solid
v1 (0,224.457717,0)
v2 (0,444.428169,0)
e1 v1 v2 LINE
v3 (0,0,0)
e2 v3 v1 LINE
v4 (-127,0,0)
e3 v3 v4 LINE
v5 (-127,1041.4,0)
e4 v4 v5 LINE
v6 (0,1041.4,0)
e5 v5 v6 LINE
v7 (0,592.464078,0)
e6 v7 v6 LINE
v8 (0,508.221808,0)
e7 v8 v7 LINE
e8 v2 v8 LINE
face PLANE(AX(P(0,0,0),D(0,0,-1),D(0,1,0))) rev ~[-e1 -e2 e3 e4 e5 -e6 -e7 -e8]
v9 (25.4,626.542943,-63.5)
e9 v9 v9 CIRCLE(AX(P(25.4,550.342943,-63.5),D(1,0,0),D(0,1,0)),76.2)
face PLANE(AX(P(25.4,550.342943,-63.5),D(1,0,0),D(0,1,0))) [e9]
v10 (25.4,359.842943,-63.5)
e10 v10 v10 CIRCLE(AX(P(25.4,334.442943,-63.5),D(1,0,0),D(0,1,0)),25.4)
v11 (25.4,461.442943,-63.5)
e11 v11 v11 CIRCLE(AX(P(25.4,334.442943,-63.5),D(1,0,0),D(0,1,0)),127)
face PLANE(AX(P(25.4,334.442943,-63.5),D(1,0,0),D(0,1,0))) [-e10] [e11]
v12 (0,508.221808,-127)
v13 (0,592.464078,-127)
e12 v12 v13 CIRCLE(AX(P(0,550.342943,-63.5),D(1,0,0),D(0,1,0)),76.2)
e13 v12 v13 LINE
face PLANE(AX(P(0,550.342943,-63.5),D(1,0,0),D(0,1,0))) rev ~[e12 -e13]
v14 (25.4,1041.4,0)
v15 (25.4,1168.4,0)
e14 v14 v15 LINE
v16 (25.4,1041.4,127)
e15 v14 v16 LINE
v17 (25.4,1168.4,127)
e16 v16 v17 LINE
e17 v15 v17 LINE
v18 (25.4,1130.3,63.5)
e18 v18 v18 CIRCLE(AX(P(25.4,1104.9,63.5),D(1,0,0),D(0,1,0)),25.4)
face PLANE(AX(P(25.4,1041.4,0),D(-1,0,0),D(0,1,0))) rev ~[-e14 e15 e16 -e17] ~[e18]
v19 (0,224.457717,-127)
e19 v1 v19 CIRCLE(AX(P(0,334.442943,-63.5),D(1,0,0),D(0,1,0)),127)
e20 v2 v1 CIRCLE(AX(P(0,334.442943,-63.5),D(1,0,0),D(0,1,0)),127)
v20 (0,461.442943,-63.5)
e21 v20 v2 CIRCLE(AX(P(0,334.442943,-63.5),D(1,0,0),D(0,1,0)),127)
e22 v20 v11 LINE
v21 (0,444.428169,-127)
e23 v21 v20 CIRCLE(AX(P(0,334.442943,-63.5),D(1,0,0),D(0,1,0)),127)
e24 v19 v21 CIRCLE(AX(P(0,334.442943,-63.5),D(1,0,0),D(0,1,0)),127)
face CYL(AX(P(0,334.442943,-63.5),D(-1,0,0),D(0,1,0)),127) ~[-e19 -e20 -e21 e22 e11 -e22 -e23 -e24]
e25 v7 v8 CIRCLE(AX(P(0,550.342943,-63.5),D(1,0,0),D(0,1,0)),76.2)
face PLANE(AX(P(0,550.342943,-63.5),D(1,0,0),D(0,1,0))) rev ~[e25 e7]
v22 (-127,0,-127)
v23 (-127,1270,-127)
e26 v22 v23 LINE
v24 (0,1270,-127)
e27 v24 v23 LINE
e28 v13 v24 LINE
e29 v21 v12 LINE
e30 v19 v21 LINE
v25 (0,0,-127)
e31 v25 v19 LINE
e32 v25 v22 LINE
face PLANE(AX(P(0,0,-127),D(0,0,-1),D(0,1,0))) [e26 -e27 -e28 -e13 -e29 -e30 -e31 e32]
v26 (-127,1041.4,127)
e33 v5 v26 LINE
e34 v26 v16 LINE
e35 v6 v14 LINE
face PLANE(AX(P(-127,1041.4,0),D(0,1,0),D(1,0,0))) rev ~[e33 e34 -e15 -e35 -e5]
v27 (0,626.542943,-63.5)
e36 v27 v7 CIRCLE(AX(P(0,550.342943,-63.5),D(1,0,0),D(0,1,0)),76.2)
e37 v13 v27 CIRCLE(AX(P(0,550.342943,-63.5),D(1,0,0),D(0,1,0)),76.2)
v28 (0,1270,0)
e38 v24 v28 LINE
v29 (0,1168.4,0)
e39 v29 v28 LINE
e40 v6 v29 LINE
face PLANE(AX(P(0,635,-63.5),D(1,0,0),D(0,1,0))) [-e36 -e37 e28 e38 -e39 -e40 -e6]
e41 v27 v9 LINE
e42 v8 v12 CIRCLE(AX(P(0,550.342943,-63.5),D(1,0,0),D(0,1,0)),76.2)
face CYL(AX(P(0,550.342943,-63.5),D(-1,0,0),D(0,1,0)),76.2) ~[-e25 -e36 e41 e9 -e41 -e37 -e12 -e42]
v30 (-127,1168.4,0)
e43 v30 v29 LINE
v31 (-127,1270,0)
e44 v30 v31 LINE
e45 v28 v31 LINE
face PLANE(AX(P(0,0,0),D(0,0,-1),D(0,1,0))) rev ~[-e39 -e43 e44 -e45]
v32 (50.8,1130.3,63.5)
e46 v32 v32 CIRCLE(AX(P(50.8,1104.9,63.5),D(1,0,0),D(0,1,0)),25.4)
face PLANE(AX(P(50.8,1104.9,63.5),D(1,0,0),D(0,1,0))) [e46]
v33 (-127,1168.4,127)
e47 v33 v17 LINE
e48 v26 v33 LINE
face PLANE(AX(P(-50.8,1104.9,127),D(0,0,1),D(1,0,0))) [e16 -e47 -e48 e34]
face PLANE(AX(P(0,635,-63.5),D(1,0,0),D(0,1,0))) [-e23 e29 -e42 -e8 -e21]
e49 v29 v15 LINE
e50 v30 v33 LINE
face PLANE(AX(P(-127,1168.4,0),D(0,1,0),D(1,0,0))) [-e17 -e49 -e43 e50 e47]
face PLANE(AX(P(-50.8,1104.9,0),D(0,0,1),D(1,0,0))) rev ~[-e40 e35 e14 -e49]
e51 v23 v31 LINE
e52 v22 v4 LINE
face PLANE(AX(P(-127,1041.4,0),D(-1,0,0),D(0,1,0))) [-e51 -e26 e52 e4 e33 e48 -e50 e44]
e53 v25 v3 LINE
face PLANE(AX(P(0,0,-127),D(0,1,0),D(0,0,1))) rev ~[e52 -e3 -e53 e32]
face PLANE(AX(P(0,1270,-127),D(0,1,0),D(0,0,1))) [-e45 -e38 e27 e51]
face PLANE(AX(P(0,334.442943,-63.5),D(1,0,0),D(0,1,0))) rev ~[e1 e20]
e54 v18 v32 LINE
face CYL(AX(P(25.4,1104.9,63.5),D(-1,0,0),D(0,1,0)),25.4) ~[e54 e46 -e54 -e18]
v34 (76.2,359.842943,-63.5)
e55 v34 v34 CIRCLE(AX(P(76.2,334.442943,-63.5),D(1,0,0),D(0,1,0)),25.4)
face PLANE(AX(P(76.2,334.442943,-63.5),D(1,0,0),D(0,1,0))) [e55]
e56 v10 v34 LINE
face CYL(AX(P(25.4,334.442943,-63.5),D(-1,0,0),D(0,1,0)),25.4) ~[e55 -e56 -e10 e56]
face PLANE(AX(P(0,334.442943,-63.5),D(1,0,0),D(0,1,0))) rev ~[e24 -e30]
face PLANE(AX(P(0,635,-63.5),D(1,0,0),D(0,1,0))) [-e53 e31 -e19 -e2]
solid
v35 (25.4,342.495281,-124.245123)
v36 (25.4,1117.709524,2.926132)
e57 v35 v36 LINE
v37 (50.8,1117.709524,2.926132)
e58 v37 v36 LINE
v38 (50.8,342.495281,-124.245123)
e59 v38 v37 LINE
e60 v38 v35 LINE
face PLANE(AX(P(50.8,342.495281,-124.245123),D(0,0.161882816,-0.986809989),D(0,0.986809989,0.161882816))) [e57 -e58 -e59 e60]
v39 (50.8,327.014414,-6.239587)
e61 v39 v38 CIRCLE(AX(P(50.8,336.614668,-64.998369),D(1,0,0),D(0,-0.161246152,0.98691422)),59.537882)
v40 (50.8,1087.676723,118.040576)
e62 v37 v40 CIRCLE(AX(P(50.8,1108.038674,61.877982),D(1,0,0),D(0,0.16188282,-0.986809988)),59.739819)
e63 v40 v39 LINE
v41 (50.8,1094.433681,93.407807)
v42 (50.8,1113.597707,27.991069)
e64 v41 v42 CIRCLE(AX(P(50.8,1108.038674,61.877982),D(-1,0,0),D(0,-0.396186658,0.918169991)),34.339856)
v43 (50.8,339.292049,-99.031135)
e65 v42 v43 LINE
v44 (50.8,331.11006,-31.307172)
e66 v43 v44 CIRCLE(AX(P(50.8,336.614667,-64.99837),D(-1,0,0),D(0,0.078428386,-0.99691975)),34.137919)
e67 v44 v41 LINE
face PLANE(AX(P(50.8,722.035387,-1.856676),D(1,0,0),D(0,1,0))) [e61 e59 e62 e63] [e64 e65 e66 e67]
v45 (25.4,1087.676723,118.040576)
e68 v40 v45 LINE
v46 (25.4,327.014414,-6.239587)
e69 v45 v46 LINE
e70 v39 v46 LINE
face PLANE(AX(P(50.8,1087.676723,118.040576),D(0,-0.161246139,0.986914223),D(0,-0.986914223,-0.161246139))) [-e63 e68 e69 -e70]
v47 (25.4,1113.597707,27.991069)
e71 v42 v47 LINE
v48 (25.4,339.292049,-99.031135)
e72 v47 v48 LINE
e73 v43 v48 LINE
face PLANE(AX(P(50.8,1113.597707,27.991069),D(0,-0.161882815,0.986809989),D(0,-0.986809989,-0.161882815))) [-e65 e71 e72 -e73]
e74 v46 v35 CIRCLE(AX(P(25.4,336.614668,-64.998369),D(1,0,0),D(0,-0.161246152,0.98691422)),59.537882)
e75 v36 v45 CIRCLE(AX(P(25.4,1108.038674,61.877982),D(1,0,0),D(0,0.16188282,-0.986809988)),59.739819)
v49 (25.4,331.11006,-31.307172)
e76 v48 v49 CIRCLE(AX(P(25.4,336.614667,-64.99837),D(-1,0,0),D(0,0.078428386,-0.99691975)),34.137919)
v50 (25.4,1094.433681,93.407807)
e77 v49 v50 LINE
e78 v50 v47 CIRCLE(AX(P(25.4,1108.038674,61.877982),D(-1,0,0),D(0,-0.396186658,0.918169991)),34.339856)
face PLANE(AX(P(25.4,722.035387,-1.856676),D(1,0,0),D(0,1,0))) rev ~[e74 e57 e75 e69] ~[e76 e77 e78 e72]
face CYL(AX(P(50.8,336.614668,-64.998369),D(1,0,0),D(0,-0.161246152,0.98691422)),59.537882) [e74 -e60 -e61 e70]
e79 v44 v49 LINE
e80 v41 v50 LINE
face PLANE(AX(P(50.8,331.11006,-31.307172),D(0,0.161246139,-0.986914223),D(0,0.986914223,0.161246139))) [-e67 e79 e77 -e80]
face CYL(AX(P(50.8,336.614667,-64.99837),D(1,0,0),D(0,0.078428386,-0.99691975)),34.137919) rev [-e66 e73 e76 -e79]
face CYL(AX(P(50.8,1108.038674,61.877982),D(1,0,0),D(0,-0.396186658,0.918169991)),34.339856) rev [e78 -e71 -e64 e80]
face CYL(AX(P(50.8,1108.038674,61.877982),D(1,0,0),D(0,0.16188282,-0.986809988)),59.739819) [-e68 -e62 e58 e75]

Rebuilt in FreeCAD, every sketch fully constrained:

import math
import FreeCAD as App
import Part
import Sketcher
Q = App.Units.Quantity

doc = App.newDocument("Part")
params = doc.addObject("Spreadsheet::Sheet", "Params")
for row, (alias, value) in enumerate([
    ("sketch1_width", "50 in"),
    ("sketch1_height", "5 in"),
    ("pad1_length", "5 in"),
    ("sketch2_diameter", "10 in"),
    ("sketch2_diameter2", "6 in"),
    ("pad2_length", "1 in"),
    ("sketch3_diameter", "2 in"),
    ("pad3_length", "2 in"),
    ("sketch4_width", "6 in"),
    ("sketch4_height", "5 in"),
    ("pad4_length", "5 in"),
    ("sketch5_diameter", "2 in"),
    ("pad5_length", "1 in"),
    ("pad6_length", "1 in"),
], start=1):
    params.set(f"A{row}", alias)
    params.set(f"B{row}", "=" + value)
    params.setAlias(f"B{row}", alias)

body = doc.addObject("PartDesign::Body", "Body")

# Sketch on YZ plane
sketch1 = body.newObject("Sketcher::SketchObject", "Sketch")
sketch1.AttachmentSupport = (doc.getObject("YZ_Plane"), [""])
sketch1.MapMode = "FlatFace"
sketch1.addGeometry([
    Part.LineSegment(App.Vector(0, 0, 0), App.Vector(0, -127, 0)),
    Part.LineSegment(App.Vector(0, -127, 0), App.Vector(1270, -127, 0)),
    Part.LineSegment(App.Vector(1270, -127, 0), App.Vector(1270, 0, 0)),
    Part.LineSegment(App.Vector(1270, 0, 0), App.Vector(0, 0, 0)),
], False)
sketch1.addConstraint([
    Sketcher.Constraint("Coincident", 0, 2, 1, 1),
    Sketcher.Constraint("Coincident", 1, 2, 2, 1),
    Sketcher.Constraint("Coincident", 2, 2, 3, 1),
    Sketcher.Constraint("Coincident", 3, 2, 0, 1),
    Sketcher.Constraint("Vertical", 0),
    Sketcher.Constraint("Horizontal", 1),
    Sketcher.Constraint("Vertical", 2),
    Sketcher.Constraint("Horizontal", 3),
    Sketcher.Constraint("Coincident", 3, 2, -1, 1),
    Sketcher.Constraint("DistanceX", 1, 1, 1, 2, Q("50 in")),
    Sketcher.Constraint("DistanceY", 0, 2, 0, 1, Q("5 in")),
])
sketch1.setExpression("Constraints[9]", "Params.sketch1_width")
sketch1.setExpression("Constraints[10]", "Params.sketch1_height")
pad1 = body.newObject("PartDesign::Pad", "Pad")
pad1.Profile = sketch1
pad1.setExpression("Length", "Params.pad1_length")
pad1.Reversed = True

# Sketch on YZ plane
sketch2 = body.newObject("Sketcher::SketchObject", "Sketch001")
sketch2.AttachmentSupport = (doc.getObject("YZ_Plane"), [""])
sketch2.MapMode = "FlatFace"
sketch2.addGeometry([
    Part.Circle(App.Vector(334.442943, -63.5, 0), App.Vector(0, 0, 1), 127),
    Part.Circle(App.Vector(550.342943, -63.5, 0), App.Vector(0, 0, 1), 76.2),
], False)
sketch2.addConstraint([
    Sketcher.Constraint("Horizontal", 0, 3, 1, 3),
    Sketcher.Constraint("Diameter", 0, Q("10 in")),
    Sketcher.Constraint("Diameter", 1, Q("6 in")),
    Sketcher.Constraint("DistanceY", 0, 3, -1, 1, Q("2.5 in")),
    Sketcher.Constraint("DistanceX", 0, 3, 1, 3, Q("8.5 in")),
    Sketcher.Constraint("DistanceX", -1, 1, 0, 3, Q("334.442943 mm")),
])
sketch2.setExpression("Constraints[1]", "Params.sketch2_diameter")
sketch2.setExpression("Constraints[2]", "Params.sketch2_diameter2")
pad2 = body.newObject("PartDesign::Pad", "Pad001")
pad2.Profile = sketch2
pad2.setExpression("Length", "Params.pad2_length")

# Sketch on YZ plane
sketch3 = body.newObject("Sketcher::SketchObject", "Sketch002")
sketch3.AttachmentSupport = (doc.getObject("YZ_Plane"), [""])
sketch3.MapMode = "FlatFace"
sketch3.AttachmentOffset = App.Placement(App.Vector(0, 0, 1 * 25.4), App.Rotation())
sketch3.addGeometry(Part.Circle(App.Vector(334.442943, -63.5, 0), App.Vector(0, 0, 1), 25.4), False)
sketch3.addConstraint([
    Sketcher.Constraint("Diameter", 0, Q("2 in")),
    Sketcher.Constraint("DistanceY", 0, 3, -1, 1, Q("2.5 in")),
    Sketcher.Constraint("DistanceX", -1, 1, 0, 3, Q("334.442943 mm")),
])
sketch3.setExpression("Constraints[0]", "Params.sketch3_diameter")
pad3 = body.newObject("PartDesign::Pad", "Pad002")
pad3.Profile = sketch3
pad3.setExpression("Length", "Params.pad3_length")

# Sketch on XY plane
sketch4 = body.newObject("Sketcher::SketchObject", "Sketch003")
sketch4.AttachmentSupport = (doc.getObject("XY_Plane"), [""])
sketch4.MapMode = "FlatFace"
sketch4.addGeometry([
    Part.LineSegment(App.Vector(-127, 1168.4, 0), App.Vector(-127, 1041.4, 0)),
    Part.LineSegment(App.Vector(-127, 1041.4, 0), App.Vector(25.4, 1041.4, 0)),
    Part.LineSegment(App.Vector(25.4, 1041.4, 0), App.Vector(25.4, 1168.4, 0)),
    Part.LineSegment(App.Vector(25.4, 1168.4, 0), App.Vector(-127, 1168.4, 0)),
], False)
sketch4.addConstraint([
    Sketcher.Constraint("Coincident", 0, 2, 1, 1),
    Sketcher.Constraint("Coincident", 1, 2, 2, 1),
    Sketcher.Constraint("Coincident", 2, 2, 3, 1),
    Sketcher.Constraint("Coincident", 3, 2, 0, 1),
    Sketcher.Constraint("Vertical", 0),
    Sketcher.Constraint("Horizontal", 1),
    Sketcher.Constraint("Vertical", 2),
    Sketcher.Constraint("Horizontal", 3),
    Sketcher.Constraint("DistanceX", 1, 1, 1, 2, Q("6 in")),
    Sketcher.Constraint("DistanceY", 0, 2, 0, 1, Q("5 in")),
    Sketcher.Constraint("DistanceX", 0, 2, -1, 1, Q("5 in")),
    Sketcher.Constraint("DistanceY", -1, 1, 0, 2, Q("41 in")),
])
sketch4.setExpression("Constraints[8]", "Params.sketch4_width")
sketch4.setExpression("Constraints[9]", "Params.sketch4_height")
pad4 = body.newObject("PartDesign::Pad", "Pad003")
pad4.Profile = sketch4
pad4.setExpression("Length", "Params.pad4_length")

# Sketch on YZ plane
sketch5 = body.newObject("Sketcher::SketchObject", "Sketch004")
sketch5.AttachmentSupport = (doc.getObject("YZ_Plane"), [""])
sketch5.MapMode = "FlatFace"
sketch5.AttachmentOffset = App.Placement(App.Vector(0, 0, 1 * 25.4), App.Rotation())
sketch5.addGeometry(Part.Circle(App.Vector(1104.9, 63.5, 0), App.Vector(0, 0, 1), 25.4), False)
sketch5.addConstraint([
    Sketcher.Constraint("Diameter", 0, Q("2 in")),
    Sketcher.Constraint("DistanceX", -1, 1, 0, 3, Q("43.5 in")),
    Sketcher.Constraint("DistanceY", -1, 1, 0, 3, Q("2.5 in")),
])
sketch5.setExpression("Constraints[0]", "Params.sketch5_diameter")
pad5 = body.newObject("PartDesign::Pad", "Pad004")
pad5.Profile = sketch5
pad5.setExpression("Length", "Params.pad5_length")
body2 = doc.addObject("PartDesign::Body", "Body001")

# Sketch on YZ plane
sketch6 = body2.newObject("Sketcher::SketchObject", "Sketch005")
sketch6.AttachmentSupport = (doc.getObject("YZ_Plane001"), [""])
sketch6.MapMode = "FlatFace"
sketch6.AttachmentOffset = App.Placement(App.Vector(0, 0, 2 * 25.4), App.Rotation())
sketch6.addGeometry([
    Part.LineSegment(App.Vector(342.495281, -124.245123, 0), App.Vector(1117.709524, 2.926132, 0)),  # 0
    Part.ArcOfCircle(Part.Circle(App.Vector(1108.038674, 61.877982, 0), App.Vector(0, 0, 1), 59.739819), math.radians(-80.683801), math.radians(109.928295)),  # 1
    Part.LineSegment(App.Vector(1087.676723, 118.040576, 0), App.Vector(327.014414, -6.239587, 0)),  # 2
    Part.ArcOfCircle(Part.Circle(App.Vector(336.614668, -64.998369, 0), App.Vector(0, 0, 1), 59.537882), math.radians(99.279235), math.radians(275.6684)),  # 3
    Part.ArcOfCircle(Part.Circle(App.Vector(336.614667, -64.99837, 0), App.Vector(0, 0, 1), 34.137919), math.radians(99.279233), math.radians(274.498235)),  # 4
    Part.LineSegment(App.Vector(331.11006, -31.307172, 0), App.Vector(1094.433681, 93.407807, 0)),  # 5
    Part.ArcOfCircle(Part.Circle(App.Vector(1108.038674, 61.877982, 0), App.Vector(0, 0, 1), 34.339856), math.radians(-80.6838), math.radians(113.340003)),  # 6
    Part.LineSegment(App.Vector(1113.597707, 27.991069, 0), App.Vector(339.292049, -99.031135, 0)),  # 7
], False)
sketch6.addConstraint([
    Sketcher.Constraint("Tangent", 0, 2, 1, 1),
    Sketcher.Constraint("Coincident", 1, 2, 2, 1),
    Sketcher.Constraint("Tangent", 2, 2, 3, 1),
    Sketcher.Constraint("Coincident", 3, 2, 0, 1),
    Sketcher.Constraint("Tangent", 4, 1, 5, 1),
    Sketcher.Constraint("Coincident", 5, 2, 6, 2),
    Sketcher.Constraint("Tangent", 6, 1, 7, 1),
    Sketcher.Constraint("Coincident", 7, 2, 4, 2),
    Sketcher.Constraint("Coincident", 4, 3, 3, 3),
    Sketcher.Constraint("Coincident", 6, 3, 1, 3),
    Sketcher.Constraint("Parallel", 2, 5),
    Sketcher.Constraint("Parallel", 0, 7),
    Sketcher.Constraint("Radius", 1, Q("59.739819 mm")),
    Sketcher.Constraint("Radius", 4, Q("34.137919 mm")),
    Sketcher.Constraint("Radius", 3, Q("59.537882 mm")),
    Sketcher.Constraint("Radius", 6, Q("34.339856 mm")),
    Sketcher.Constraint("Distance", 0, Q("785.575999 mm")),
    Sketcher.Constraint("DistanceY", 3, 3, 0, 2, Q("67.924501 mm")),
    Sketcher.Constraint("DistanceX", 1, 2, 0, 2, Q("30.032801 mm")),
    Sketcher.Constraint("DistanceY", 3, 2, 1, 2, Q("242.285699 mm")),
    Sketcher.Constraint("DistanceX", -1, 1, 3, 3, Q("336.614668 mm")),
    Sketcher.Constraint("DistanceY", 3, 3, -1, 1, Q("64.998369 mm")),
])
pad6 = body2.newObject("PartDesign::Pad", "Pad005")
pad6.Profile = sketch6
pad6.setExpression("Length", "Params.pad6_length")
pad6.Reversed = True

doc.recompute()
